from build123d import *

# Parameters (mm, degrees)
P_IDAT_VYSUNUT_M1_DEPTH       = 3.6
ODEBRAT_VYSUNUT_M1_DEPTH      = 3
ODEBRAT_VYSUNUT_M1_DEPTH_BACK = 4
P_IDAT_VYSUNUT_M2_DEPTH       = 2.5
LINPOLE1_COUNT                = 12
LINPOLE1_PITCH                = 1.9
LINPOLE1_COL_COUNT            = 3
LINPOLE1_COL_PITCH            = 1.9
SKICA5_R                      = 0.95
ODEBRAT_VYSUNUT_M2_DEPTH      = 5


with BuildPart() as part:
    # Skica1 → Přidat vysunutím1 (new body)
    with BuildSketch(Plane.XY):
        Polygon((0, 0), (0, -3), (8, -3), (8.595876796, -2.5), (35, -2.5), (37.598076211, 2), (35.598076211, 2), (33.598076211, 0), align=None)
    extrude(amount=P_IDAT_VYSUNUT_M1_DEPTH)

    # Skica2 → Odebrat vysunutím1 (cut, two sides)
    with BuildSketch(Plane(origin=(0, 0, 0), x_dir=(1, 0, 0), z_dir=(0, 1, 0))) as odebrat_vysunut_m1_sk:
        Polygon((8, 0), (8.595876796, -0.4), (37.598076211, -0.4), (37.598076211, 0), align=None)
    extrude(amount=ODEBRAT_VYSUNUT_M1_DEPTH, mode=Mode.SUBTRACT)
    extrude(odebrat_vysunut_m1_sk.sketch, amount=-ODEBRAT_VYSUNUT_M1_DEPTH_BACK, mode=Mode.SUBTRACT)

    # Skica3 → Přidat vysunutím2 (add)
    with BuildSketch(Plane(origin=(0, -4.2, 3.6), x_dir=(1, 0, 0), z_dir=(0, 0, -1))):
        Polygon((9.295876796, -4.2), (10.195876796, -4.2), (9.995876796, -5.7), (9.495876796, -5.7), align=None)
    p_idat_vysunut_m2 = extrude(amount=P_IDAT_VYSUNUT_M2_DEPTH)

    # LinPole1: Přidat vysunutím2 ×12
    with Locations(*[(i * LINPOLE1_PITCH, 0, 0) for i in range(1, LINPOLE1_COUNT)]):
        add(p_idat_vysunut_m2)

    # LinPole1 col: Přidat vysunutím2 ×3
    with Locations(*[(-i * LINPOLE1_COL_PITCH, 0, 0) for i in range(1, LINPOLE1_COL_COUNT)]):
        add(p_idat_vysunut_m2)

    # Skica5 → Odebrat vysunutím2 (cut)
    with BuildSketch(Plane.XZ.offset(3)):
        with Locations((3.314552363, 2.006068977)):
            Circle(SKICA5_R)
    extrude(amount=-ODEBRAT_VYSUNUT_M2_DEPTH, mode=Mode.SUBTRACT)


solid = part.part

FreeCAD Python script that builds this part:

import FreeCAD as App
import Part
import Sketcher
Q = App.Units.Quantity

doc = App.newDocument("Part")
params = doc.addObject("Spreadsheet::Sheet", "Params")
for row, (alias, value) in enumerate([
    ("sketch1_width", "8 mm"),
    ("sketch1_width2", "2 mm"),
    ("sketch1_height", "3 mm"),
    ("pad1_length", "3.6 mm"),
    ("sketch2_height", "0.4 mm"),
    ("sketch3_width", "0.9 mm"),
    ("sketch3_width2", "0.5 mm"),
    ("pad2_length", "2.5 mm"),
    ("linearpattern_pitch", "1.9 mm"),
    ("linearpattern2_pitch", "1.9 mm"),
    ("sketch4_diameter", "1.9 mm"),
    ("pocket2_length", "5 mm"),
], start=1):
    params.set(f"A{row}", alias)
    params.set(f"B{row}", "=" + value)
    params.setAlias(f"B{row}", alias)

body = doc.addObject("PartDesign::Body", "Body")

# Sketch on XY plane
sketch1 = body.newObject("Sketcher::SketchObject", "Sketch")
sketch1.AttachmentSupport = (doc.getObject("XY_Plane"), [""])
sketch1.MapMode = "FlatFace"
sketch1.addGeometry([
    Part.LineSegment(App.Vector(0, 0, 0), App.Vector(0, -3, 0)),  # 0
    Part.LineSegment(App.Vector(0, -3, 0), App.Vector(8, -3, 0)),  # 1
    Part.LineSegment(App.Vector(8, -3, 0), App.Vector(8.595877, -2.5, 0)),  # 2
    Part.LineSegment(App.Vector(8.595877, -2.5, 0), App.Vector(35, -2.5, 0)),  # 3
    Part.LineSegment(App.Vector(35, -2.5, 0), App.Vector(37.598076, 2, 0)),  # 4
    Part.LineSegment(App.Vector(37.598076, 2, 0), App.Vector(35.598076, 2, 0)),  # 5
    Part.LineSegment(App.Vector(35.598076, 2, 0), App.Vector(33.598076, 0, 0)),  # 6
    Part.LineSegment(App.Vector(33.598076, 0, 0), App.Vector(0, 0, 0)),  # 7
], False)
sketch1.addConstraint([
    Sketcher.Constraint("Coincident", 0, 2, 1, 1),
    Sketcher.Constraint("Coincident", 1, 2, 2, 1),
    Sketcher.Constraint("Coincident", 2, 2, 3, 1),
    Sketcher.Constraint("Coincident", 3, 2, 4, 1),
    Sketcher.Constraint("Coincident", 4, 2, 5, 1),
    Sketcher.Constraint("Coincident", 5, 2, 6, 1),
    Sketcher.Constraint("Coincident", 6, 2, 7, 1),
    Sketcher.Constraint("Coincident", 7, 2, 0, 1),
    Sketcher.Constraint("Vertical", 0),
    Sketcher.Constraint("Horizontal", 1),
    Sketcher.Constraint("Horizontal", 3),
    Sketcher.Constraint("Horizontal", 5),
    Sketcher.Constraint("Horizontal", 7),
    Sketcher.Constraint("Coincident", 7, 2, -1, 1),
    Sketcher.Constraint("DistanceX", 1, 1, 1, 2, 8.0),
    Sketcher.Constraint("DistanceX", 5, 2, 5, 1, 2.0),
    Sketcher.Constraint("DistanceY", 0, 2, 0, 1, 3.0),
    Sketcher.Constraint("Angle", 2, Q("40 deg")),
    Sketcher.Constraint("Angle", 4, Q("60 deg")),
    Sketcher.Constraint("Angle", 6, Q("-135 deg")),
    Sketcher.Constraint("DistanceX", -1, 1, 3, 2, 35.0),
    Sketcher.Constraint("DistanceY", -1, 1, 4, 2, 2.0),
    Sketcher.Constraint("DistanceY", 2, 2, -1, 1, 2.5),
])
sketch1.setExpression("Constraints[14]", "Params.sketch1_width")
sketch1.setExpression("Constraints[15]", "Params.sketch1_width2")
sketch1.setExpression("Constraints[16]", "Params.sketch1_height")
pad1 = body.newObject("PartDesign::Pad", "Pad")
pad1.Profile = sketch1
pad1.setExpression("Length", "Params.pad1_length")

# Sketch on XZ plane
sketch2 = body.newObject("Sketcher::SketchObject", "Sketch001")
sketch2.AttachmentSupport = (doc.getObject("XZ_Plane"), [""])
sketch2.MapMode = "FlatFace"
sketch2.addGeometry([
    Part.LineSegment(App.Vector(8, 0, 0), App.Vector(8.595877, 0.4, 0)),
    Part.LineSegment(App.Vector(8.595877, 0.4, 0), App.Vector(37.598076, 0.4, 0)),
    Part.LineSegment(App.Vector(37.598076, 0.4, 0), App.Vector(37.598076, 0, 0)),
    Part.LineSegment(App.Vector(37.598076, 0, 0), App.Vector(8, 0, 0)),
], False)
sketch2.addConstraint([
    Sketcher.Constraint("Coincident", 0, 2, 1, 1),
    Sketcher.Constraint("Coincident", 1, 2, 2, 1),
    Sketcher.Constraint("Coincident", 2, 2, 3, 1),
    Sketcher.Constraint("Coincident", 3, 2, 0, 1),
    Sketcher.Constraint("Horizontal", 1),
    Sketcher.Constraint("Vertical", 2),
    Sketcher.Constraint("Horizontal", 3),
    Sketcher.Constraint("PointOnObject", 2, 2, -1),
    Sketcher.Constraint("DistanceY", 2, 2, 2, 1, 0.4),
    Sketcher.Constraint("DistanceX", -1, 1, 3, 2, 8.0),
    Sketcher.Constraint("DistanceX", 1, 1, 1, 2, 29.002199),
    Sketcher.Constraint("DistanceX", 3, 2, 3, 1, 29.598076),
])
sketch2.setExpression("Constraints[8]", "Params.sketch2_height")
pocket1 = body.newObject("PartDesign::Pocket", "Pocket")
pocket1.Profile = sketch2
pocket1.Type = "ThroughAll"
pocket1.Midplane = True

# Sketch on XY plane
sketch3 = body.newObject("Sketcher::SketchObject", "Sketch002")
sketch3.AttachmentSupport = (doc.getObject("XY_Plane"), [""])
sketch3.MapMode = "FlatFace"
sketch3.AttachmentOffset = App.Placement(App.Vector(0, 0, 3.6), App.Rotation())
sketch3.addGeometry([
    Part.LineSegment(App.Vector(10.195877, 0, 0), App.Vector(9.295877, 0, 0)),
    Part.LineSegment(App.Vector(9.295877, 0, 0), App.Vector(9.495877, 1.5, 0)),
    Part.LineSegment(App.Vector(9.495877, 1.5, 0), App.Vector(9.995877, 1.5, 0)),
    Part.LineSegment(App.Vector(9.995877, 1.5, 0), App.Vector(10.195877, 0, 0)),
], False)
sketch3.addConstraint([
    Sketcher.Constraint("Coincident", 0, 2, 1, 1),
    Sketcher.Constraint("Coincident", 1, 2, 2, 1),
    Sketcher.Constraint("Coincident", 2, 2, 3, 1),
    Sketcher.Constraint("Coincident", 3, 2, 0, 1),
    Sketcher.Constraint("Horizontal", 0),
    Sketcher.Constraint("Horizontal", 2),
    Sketcher.Constraint("PointOnObject", 0, 2, -1),
    Sketcher.Constraint("Equal", 1, 3),
    Sketcher.Constraint("DistanceX", 0, 2, 0, 1, 0.9),
    Sketcher.Constraint("DistanceX", 2, 1, 2, 2, 0.5),
    Sketcher.Constraint("DistanceY", -1, 1, 1, 2, 1.5),
    Sketcher.Constraint("DistanceX", -1, 1, 0, 2, 9.295877),
])
sketch3.setExpression("Constraints[8]", "Params.sketch3_width")
sketch3.setExpression("Constraints[9]", "Params.sketch3_width2")
pad2 = body.newObject("PartDesign::Pad", "Pad001")
pad2.Profile = sketch3
pad2.setExpression("Length", "Params.pad2_length")
pad2.Reversed = True
doc.recompute()

linearpattern = body.newObject("PartDesign::LinearPattern", "LinearPattern")
linearpattern.Originals = [pad2]
linearpattern.Direction = (doc.getObject("X_Axis"), [""])
linearpattern.Mode = "offset"
linearpattern.setExpression("Offset", "Params.linearpattern_pitch")
linearpattern.Occurrences = 12
body.Tip = linearpattern
doc.recompute()

linearpattern2 = body.newObject("PartDesign::LinearPattern", "LinearPattern001")
linearpattern2.Originals = [pad2]
linearpattern2.Direction = (doc.getObject("X_Axis"), [""])
linearpattern2.Mode = "offset"
linearpattern2.setExpression("Offset", "Params.linearpattern2_pitch")
linearpattern2.Occurrences = 3
linearpattern2.Reversed = True
body.Tip = linearpattern2

# Sketch on XZ plane
sketch4 = body.newObject("Sketcher::SketchObject", "Sketch003")
sketch4.AttachmentSupport = (doc.getObject("XZ_Plane"), [""])
sketch4.MapMode = "FlatFace"
sketch4.AttachmentOffset = App.Placement(App.Vector(0, 0, 3), App.Rotation())
sketch4.addGeometry(Part.Circle(App.Vector(3.314552, 2.006069, 0), App.Vector(0, 0, 1), 0.95), False)
sketch4.addConstraint([
    Sketcher.Constraint("Diameter", 0, 1.9),
    Sketcher.Constraint("DistanceY", -1, 1, 0, 3, 2.006069),
    Sketcher.Constraint("DistanceX", -1, 1, 0, 3, 3.314552),
])
sketch4.setExpression("Constraints[0]", "Params.sketch4_diameter")
pocket2 = body.newObject("PartDesign::Pocket", "Pocket001")
pocket2.Profile = sketch4
pocket2.setExpression("Length", "Params.pocket2_length")

doc.recompute()
